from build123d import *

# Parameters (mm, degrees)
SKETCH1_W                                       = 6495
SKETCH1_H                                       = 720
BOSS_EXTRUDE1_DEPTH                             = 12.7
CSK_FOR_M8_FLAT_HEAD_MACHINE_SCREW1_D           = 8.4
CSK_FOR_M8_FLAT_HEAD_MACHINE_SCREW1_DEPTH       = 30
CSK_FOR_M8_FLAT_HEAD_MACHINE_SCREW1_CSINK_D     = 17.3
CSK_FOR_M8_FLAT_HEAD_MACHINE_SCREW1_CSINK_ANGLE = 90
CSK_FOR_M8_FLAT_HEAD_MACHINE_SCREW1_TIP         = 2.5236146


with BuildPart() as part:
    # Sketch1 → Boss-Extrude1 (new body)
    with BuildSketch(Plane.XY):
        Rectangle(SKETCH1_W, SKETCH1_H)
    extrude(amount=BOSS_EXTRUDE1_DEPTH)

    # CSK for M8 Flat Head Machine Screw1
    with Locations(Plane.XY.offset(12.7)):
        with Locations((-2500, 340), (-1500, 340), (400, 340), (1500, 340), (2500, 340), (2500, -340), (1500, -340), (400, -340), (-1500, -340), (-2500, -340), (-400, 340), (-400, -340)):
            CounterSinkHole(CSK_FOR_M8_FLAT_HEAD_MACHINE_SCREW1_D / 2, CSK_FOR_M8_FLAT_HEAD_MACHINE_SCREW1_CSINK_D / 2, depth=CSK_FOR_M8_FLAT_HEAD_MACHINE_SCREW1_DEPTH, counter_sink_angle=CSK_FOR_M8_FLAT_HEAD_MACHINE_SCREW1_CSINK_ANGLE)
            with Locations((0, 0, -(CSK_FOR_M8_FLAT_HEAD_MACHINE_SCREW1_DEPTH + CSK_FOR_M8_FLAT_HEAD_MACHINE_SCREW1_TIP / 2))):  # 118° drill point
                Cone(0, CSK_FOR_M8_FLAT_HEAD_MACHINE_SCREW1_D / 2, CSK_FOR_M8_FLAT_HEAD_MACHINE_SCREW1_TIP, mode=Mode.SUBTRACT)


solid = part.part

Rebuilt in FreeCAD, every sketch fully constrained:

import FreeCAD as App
import Part
import Sketcher

V = App.Vector
Q = App.Units.Quantity

doc = App.newDocument("Part")
body = doc.addObject("PartDesign::Body", "Body")

# Sketch on XY plane
sketch1 = body.newObject("Sketcher::SketchObject", "Sketch")
sketch1.AttachmentSupport = (doc.getObject("XY_Plane"), [""])
sketch1.MapMode = "FlatFace"
sketch1.addGeometry([
    Part.LineSegment(V(-3247.5, 360, 0), V(-3247.5, -360, 0)),
    Part.LineSegment(V(-3247.5, -360, 0), V(3247.5, -360, 0)),
    Part.LineSegment(V(3247.5, -360, 0), V(3247.5, 360, 0)),
    Part.LineSegment(V(3247.5, 360, 0), V(-3247.5, 360, 0)),
], False)
sketch1.addConstraint([
    Sketcher.Constraint("Coincident", 0, 2, 1, 1),
    Sketcher.Constraint("Coincident", 1, 2, 2, 1),
    Sketcher.Constraint("Coincident", 2, 2, 3, 1),
    Sketcher.Constraint("Coincident", 3, 2, 0, 1),
    Sketcher.Constraint("Vertical", 0),
    Sketcher.Constraint("Horizontal", 1),
    Sketcher.Constraint("Vertical", 2),
    Sketcher.Constraint("Horizontal", 3),
    Sketcher.Constraint("Symmetric", 0, 2, 2, 2, -1, 1),
    Sketcher.Constraint("DistanceX", 1, 1, 1, 2, Q("6495 mm")),
    Sketcher.Constraint("DistanceY", 0, 2, 0, 1, Q("720 mm")),
])
pad1 = body.newObject("PartDesign::Pad", "Pad")
pad1.Profile = sketch1
pad1.Length = 12.7

# Sketch on XY plane
sketch2 = body.newObject("Sketcher::SketchObject", "Sketch001")
sketch2.AttachmentSupport = (doc.getObject("XY_Plane"), [""])
sketch2.MapMode = "FlatFace"
sketch2.AttachmentOffset = App.Placement(V(0, 0, 12.7), App.Rotation())
sketch2.addGeometry([
    Part.Circle(V(-2500, 340, 0), V(0, 0, 1), 4.2),  # 0
    Part.Circle(V(-1500, 340, 0), V(0, 0, 1), 4.2),  # 1
    Part.Circle(V(400, 340, 0), V(0, 0, 1), 4.2),  # 2
    Part.Circle(V(1500, 340, 0), V(0, 0, 1), 4.2),  # 3
    Part.Circle(V(2500, 340, 0), V(0, 0, 1), 4.2),  # 4
    Part.Circle(V(2500, -340, 0), V(0, 0, 1), 4.2),  # 5
    Part.Circle(V(1500, -340, 0), V(0, 0, 1), 4.2),  # 6
    Part.Circle(V(400, -340, 0), V(0, 0, 1), 4.2),  # 7
    Part.Circle(V(-1500, -340, 0), V(0, 0, 1), 4.2),  # 8
    Part.Circle(V(-2500, -340, 0), V(0, 0, 1), 4.2),  # 9
    Part.Circle(V(-400, 340, 0), V(0, 0, 1), 4.2),  # 10
    Part.Circle(V(-400, -340, 0), V(0, 0, 1), 4.2),  # 11
], False)
sketch2.addConstraint([
    Sketcher.Constraint("Equal", 0, 1),
    Sketcher.Constraint("Equal", 1, 2),
    Sketcher.Constraint("Equal", 2, 3),
    Sketcher.Constraint("Equal", 3, 4),
    Sketcher.Constraint("Equal", 4, 5),
    Sketcher.Constraint("Equal", 5, 6),
    Sketcher.Constraint("Equal", 6, 7),
    Sketcher.Constraint("Equal", 7, 8),
    Sketcher.Constraint("Equal", 8, 9),
    Sketcher.Constraint("Equal", 9, 10),
    Sketcher.Constraint("Equal", 10, 11),
    Sketcher.Constraint("Symmetric", 0, 3, 5, 3, -1, 1),
    Sketcher.Constraint("Symmetric", 1, 3, 6, 3, -1, 1),
    Sketcher.Constraint("Symmetric", 3, 3, 8, 3, -1, 1),
    Sketcher.Constraint("Symmetric", 4, 3, 9, 3, -1, 1),
    Sketcher.Constraint("Symmetric", 7, 3, 10, 3, -1, 1),
    Sketcher.Constraint("Symmetric", 2, 3, 11, 3, -1, 1),
    Sketcher.Constraint("Symmetric", 1, 3, 3, 3, -2),
    Sketcher.Constraint("Symmetric", 0, 3, 4, 3, -2),
    Sketcher.Constraint("Symmetric", 2, 3, 10, 3, -2),
    Sketcher.Constraint("Horizontal", 0, 3, 1, 3),
    Sketcher.Constraint("Horizontal", 1, 3, 2, 3),
    Sketcher.Constraint("Diameter", 0, Q("8.4 mm")),
    Sketcher.Constraint("DistanceX", 0, 3, -1, 1, Q("2500 mm")),
    Sketcher.Constraint("DistanceY", -1, 1, 0, 3, Q("340 mm")),
    Sketcher.Constraint("DistanceX", 1, 3, -1, 1, Q("1500 mm")),
    Sketcher.Constraint("DistanceX", -1, 1, 2, 3, Q("400 mm")),
])
doc.recompute()
hole = body.newObject("PartDesign::Hole", "Hole")
hole.Profile = sketch2
hole.ThreadType = "None"
hole.Diameter = 8.4
hole.DepthType = "Dimension"
hole.Depth = 30
hole.DrillPoint = "Angled"
hole.DrillPointAngle = 118
hole.HoleCutType = "Countersink"
hole.HoleCutDiameter = 17.3
hole.HoleCutCountersinkAngle = 90

doc.recompute()
